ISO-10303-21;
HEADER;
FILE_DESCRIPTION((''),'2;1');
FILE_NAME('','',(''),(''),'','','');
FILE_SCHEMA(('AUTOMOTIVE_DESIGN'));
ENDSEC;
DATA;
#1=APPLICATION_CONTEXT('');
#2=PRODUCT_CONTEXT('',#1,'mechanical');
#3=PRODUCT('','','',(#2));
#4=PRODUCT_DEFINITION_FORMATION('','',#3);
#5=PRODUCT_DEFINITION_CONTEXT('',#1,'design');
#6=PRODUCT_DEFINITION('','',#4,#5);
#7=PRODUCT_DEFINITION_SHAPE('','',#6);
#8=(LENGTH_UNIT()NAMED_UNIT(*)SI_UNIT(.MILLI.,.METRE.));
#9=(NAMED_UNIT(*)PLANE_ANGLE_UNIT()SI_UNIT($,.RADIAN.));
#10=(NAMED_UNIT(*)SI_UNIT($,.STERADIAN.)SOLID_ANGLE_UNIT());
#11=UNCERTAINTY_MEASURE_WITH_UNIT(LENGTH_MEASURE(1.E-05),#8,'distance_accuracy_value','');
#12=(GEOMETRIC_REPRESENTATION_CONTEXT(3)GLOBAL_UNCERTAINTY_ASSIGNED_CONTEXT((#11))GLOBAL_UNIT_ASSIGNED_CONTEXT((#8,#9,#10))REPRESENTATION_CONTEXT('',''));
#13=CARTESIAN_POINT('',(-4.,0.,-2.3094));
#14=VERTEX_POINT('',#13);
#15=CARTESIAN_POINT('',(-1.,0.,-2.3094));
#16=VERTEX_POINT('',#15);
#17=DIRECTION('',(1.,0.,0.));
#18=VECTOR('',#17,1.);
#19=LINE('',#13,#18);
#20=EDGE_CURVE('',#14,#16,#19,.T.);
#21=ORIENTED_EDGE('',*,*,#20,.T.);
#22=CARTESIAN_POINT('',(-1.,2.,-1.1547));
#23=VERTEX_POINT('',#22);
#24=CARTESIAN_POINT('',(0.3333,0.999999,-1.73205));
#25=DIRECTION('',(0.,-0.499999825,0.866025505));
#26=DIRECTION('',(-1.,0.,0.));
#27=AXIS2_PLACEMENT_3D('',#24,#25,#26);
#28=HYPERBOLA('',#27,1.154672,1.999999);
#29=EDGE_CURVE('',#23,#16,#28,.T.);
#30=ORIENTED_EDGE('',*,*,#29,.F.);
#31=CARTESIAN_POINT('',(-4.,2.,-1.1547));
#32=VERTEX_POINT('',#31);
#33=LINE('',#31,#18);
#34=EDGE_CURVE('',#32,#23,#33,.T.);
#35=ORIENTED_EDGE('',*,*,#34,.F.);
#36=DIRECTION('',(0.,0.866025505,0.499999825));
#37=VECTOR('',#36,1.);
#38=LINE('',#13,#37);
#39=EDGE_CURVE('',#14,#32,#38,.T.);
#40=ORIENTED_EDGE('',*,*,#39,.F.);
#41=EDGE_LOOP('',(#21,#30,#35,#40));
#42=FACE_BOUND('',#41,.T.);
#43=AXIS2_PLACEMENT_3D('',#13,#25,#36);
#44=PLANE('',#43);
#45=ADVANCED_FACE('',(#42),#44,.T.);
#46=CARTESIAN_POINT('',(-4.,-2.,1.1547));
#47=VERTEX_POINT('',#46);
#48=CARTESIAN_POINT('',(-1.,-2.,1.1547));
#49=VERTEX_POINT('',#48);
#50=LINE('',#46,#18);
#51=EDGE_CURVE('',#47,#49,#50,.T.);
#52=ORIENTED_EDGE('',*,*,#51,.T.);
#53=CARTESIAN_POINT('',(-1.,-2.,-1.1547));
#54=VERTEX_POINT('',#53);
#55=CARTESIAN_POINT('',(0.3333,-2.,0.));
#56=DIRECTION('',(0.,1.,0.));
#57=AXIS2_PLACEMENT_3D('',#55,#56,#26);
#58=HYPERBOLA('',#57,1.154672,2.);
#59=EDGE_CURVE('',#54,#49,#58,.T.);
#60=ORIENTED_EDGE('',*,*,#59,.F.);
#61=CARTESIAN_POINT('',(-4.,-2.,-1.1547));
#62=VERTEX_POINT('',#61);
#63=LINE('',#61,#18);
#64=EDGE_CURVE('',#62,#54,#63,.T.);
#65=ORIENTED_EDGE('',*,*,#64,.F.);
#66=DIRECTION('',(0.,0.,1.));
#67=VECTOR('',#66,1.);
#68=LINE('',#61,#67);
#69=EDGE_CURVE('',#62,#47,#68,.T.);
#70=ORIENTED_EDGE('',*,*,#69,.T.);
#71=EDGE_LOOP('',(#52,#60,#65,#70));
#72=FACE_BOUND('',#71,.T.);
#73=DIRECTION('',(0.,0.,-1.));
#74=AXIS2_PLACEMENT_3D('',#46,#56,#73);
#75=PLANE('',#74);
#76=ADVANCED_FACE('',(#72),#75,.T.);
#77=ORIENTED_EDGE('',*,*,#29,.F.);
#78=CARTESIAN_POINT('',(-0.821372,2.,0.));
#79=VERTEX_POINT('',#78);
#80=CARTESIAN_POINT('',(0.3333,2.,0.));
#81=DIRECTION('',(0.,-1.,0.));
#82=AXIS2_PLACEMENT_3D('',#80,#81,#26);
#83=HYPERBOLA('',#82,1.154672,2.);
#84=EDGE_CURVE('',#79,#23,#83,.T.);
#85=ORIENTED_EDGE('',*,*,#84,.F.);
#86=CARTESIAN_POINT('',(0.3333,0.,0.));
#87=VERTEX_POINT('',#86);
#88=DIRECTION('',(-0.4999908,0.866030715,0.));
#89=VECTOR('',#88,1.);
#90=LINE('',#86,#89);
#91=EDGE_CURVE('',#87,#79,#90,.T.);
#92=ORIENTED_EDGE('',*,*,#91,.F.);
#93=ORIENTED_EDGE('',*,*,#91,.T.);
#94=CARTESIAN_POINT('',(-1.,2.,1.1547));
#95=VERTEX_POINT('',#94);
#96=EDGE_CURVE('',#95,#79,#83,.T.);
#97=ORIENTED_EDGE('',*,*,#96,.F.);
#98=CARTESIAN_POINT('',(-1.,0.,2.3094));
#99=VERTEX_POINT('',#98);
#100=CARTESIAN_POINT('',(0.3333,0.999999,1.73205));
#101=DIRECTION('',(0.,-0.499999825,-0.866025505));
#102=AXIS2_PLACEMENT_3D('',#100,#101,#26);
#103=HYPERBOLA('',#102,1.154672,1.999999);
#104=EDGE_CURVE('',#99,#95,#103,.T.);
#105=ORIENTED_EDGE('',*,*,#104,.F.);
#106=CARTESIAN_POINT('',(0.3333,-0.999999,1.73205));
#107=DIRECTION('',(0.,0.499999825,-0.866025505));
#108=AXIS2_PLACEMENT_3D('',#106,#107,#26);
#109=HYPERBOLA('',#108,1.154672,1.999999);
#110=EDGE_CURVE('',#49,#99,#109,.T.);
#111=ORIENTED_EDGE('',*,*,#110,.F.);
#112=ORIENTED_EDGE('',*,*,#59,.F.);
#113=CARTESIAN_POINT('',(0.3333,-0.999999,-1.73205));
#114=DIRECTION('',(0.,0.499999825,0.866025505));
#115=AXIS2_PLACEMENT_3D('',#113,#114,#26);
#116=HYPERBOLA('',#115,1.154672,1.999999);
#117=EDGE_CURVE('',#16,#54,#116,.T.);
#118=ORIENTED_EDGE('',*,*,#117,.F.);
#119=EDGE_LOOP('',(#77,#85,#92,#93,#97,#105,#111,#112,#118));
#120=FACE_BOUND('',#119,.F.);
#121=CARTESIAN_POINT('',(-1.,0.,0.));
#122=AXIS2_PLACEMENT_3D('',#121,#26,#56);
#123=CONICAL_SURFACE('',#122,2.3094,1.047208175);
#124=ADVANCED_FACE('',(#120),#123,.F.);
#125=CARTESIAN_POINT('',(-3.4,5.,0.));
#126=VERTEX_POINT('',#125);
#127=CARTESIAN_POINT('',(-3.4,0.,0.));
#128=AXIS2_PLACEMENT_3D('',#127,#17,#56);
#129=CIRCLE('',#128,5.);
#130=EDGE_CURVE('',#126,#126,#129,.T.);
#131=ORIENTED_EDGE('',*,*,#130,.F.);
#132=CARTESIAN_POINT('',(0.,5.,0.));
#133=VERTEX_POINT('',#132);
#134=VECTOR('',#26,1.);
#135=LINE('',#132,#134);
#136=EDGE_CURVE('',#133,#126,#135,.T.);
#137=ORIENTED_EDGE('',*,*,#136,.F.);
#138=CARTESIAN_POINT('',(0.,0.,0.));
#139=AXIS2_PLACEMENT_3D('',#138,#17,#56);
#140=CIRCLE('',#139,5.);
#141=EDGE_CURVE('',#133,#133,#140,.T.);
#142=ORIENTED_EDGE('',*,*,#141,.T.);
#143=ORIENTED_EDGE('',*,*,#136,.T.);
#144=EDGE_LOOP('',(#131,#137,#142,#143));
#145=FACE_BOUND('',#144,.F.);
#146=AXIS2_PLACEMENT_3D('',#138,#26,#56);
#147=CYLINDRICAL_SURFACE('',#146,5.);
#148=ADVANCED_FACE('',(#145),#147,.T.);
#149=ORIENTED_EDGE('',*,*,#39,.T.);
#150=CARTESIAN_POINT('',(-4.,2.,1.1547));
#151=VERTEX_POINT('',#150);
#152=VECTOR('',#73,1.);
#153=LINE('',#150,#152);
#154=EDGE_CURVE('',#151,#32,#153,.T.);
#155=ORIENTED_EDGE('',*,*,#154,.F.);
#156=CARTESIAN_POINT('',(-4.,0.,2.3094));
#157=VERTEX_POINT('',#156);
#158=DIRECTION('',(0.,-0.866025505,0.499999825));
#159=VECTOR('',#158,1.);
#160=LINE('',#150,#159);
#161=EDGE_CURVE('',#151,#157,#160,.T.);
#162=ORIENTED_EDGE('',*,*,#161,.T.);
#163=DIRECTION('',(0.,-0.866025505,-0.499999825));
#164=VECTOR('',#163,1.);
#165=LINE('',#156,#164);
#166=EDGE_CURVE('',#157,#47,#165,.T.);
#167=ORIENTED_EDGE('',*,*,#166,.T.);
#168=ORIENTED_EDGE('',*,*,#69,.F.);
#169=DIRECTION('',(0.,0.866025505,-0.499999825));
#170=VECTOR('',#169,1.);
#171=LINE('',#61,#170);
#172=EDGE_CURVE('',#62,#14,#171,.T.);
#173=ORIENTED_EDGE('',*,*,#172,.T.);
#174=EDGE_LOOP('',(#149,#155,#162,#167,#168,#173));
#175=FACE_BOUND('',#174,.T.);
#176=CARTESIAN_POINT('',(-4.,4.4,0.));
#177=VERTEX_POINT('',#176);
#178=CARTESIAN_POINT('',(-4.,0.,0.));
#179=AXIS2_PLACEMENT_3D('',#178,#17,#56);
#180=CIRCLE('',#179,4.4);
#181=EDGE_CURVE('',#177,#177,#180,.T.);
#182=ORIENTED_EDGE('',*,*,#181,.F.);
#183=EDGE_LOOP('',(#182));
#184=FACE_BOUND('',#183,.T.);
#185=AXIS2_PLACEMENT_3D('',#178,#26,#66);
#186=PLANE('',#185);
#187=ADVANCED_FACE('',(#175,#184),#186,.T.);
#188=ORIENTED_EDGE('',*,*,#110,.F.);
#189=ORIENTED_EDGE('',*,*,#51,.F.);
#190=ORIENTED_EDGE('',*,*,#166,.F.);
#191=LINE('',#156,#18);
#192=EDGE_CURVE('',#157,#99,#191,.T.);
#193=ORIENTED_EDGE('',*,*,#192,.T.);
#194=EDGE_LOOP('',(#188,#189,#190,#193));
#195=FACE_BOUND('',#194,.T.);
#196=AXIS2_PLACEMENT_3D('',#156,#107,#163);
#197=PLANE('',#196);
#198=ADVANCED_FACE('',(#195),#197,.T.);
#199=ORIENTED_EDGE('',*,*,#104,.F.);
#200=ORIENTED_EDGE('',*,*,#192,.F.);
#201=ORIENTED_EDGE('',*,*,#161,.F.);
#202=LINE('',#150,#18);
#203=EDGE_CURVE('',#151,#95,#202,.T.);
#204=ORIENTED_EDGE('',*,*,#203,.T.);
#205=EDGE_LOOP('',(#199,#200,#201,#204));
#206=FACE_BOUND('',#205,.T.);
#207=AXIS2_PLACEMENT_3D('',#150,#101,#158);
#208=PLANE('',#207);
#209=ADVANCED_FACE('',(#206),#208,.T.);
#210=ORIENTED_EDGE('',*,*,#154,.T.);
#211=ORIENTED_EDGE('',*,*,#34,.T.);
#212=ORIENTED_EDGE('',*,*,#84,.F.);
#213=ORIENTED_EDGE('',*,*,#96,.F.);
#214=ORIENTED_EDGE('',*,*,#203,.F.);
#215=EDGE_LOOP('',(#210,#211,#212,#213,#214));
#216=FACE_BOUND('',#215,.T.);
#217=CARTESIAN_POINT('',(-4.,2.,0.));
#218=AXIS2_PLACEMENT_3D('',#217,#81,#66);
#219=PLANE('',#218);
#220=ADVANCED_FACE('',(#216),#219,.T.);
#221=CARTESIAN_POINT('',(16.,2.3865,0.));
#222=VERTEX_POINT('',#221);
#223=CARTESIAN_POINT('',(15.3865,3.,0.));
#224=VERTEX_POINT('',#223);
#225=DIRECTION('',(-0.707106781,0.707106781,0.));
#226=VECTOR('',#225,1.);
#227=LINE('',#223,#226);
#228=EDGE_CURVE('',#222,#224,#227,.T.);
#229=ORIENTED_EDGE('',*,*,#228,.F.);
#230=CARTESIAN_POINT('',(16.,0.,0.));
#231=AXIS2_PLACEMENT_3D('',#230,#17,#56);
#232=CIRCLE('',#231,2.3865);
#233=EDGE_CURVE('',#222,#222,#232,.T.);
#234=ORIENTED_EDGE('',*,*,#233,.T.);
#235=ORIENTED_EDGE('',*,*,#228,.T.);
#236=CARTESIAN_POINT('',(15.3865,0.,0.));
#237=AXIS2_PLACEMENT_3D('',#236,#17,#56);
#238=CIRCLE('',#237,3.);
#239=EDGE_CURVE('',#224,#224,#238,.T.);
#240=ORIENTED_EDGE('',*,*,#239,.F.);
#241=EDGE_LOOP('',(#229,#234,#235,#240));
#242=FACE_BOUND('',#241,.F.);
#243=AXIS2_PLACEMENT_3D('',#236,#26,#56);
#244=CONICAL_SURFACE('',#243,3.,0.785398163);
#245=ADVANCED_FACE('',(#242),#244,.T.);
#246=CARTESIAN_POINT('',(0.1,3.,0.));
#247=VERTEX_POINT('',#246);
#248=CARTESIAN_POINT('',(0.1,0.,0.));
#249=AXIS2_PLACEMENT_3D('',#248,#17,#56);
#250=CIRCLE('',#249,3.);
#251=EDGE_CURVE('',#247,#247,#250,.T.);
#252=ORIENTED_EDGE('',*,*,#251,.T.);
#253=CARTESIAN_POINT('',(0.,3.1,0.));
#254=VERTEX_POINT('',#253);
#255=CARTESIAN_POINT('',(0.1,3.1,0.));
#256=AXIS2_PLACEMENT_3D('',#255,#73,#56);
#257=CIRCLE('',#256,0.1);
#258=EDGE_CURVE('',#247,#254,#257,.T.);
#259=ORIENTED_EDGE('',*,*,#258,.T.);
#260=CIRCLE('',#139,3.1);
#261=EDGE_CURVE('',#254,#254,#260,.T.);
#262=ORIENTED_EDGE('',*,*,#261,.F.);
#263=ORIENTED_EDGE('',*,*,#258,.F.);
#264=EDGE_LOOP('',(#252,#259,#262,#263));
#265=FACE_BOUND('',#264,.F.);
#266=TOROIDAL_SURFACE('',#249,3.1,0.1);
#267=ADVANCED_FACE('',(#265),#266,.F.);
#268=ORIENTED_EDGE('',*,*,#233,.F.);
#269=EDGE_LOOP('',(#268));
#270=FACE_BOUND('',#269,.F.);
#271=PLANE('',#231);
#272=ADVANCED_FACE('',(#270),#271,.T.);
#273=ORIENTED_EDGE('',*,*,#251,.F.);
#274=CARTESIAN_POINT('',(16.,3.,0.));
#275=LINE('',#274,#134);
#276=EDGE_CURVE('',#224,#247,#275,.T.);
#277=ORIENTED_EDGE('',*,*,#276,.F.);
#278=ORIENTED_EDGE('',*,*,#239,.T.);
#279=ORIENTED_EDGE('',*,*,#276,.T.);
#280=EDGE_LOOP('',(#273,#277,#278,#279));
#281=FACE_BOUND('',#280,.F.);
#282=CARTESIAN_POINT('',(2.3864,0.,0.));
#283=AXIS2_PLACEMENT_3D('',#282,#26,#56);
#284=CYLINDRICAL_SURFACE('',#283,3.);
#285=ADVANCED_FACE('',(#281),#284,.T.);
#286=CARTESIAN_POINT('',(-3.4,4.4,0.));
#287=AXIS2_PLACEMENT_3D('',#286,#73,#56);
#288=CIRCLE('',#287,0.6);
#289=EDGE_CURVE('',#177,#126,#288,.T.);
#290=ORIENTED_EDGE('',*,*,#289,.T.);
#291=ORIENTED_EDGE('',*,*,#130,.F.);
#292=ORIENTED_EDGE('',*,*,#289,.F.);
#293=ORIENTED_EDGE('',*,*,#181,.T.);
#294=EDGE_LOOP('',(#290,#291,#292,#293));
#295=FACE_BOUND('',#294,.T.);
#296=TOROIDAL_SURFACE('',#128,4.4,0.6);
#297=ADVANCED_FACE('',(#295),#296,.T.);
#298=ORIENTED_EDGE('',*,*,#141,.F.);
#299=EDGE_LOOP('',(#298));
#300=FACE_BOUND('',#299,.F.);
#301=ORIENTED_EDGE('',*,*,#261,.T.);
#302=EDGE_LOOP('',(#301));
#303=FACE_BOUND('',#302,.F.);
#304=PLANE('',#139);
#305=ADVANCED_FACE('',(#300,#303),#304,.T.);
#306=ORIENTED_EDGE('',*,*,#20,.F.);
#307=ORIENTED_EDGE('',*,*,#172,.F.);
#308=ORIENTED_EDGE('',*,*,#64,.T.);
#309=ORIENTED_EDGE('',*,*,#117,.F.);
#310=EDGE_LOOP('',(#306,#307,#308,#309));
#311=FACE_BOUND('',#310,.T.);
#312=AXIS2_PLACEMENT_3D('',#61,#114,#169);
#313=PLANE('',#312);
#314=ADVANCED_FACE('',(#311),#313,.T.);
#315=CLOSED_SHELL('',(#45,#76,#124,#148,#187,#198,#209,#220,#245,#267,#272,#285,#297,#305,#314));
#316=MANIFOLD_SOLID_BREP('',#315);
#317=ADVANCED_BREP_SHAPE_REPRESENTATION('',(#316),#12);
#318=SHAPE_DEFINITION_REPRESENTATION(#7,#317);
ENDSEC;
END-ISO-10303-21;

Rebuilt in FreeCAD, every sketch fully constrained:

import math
import FreeCAD as App
import Part
import Sketcher

V = App.Vector
Q = App.Units.Quantity


def edges_at(feature, points):
    """Names of the edges that pass closest to the given points."""
    edges = feature.Shape.Edges
    near = lambda p: min(range(len(edges)), key=lambda i: edges[i].distToShape(Part.Vertex(*p))[0])
    return sorted({f"Edge{near(p) + 1}" for p in points})

doc = App.newDocument("Part")
body = doc.addObject("PartDesign::Body", "Body")

# Sketch on XY plane
sketch1 = body.newObject("Sketcher::SketchObject", "Sketch")
sketch1.AttachmentSupport = (doc.getObject("XY_Plane"), [""])
sketch1.MapMode = "FlatFace"
sketch1.addGeometry(Part.LineSegment(V(0.3333, 0, 0), V(16, 0, 0)), False)
sketch1.addGeometry(Part.LineSegment(V(16, 0, 0), V(16, 3, 0)), False)
sketch1.addGeometry(Part.LineSegment(V(16, 3, 0), V(0, 3, 0)), False)
sketch1.addGeometry(Part.LineSegment(V(0, 3, 0), V(0, 5, 0)), False)
sketch1.addGeometry(Part.LineSegment(V(0, 5, 0), V(-4, 5, 0)), False)
sketch1.addGeometry(Part.LineSegment(V(-4, 5, 0), V(-4, 2.3094, 0)), False)
sketch1.addGeometry(Part.LineSegment(V(-4, 2.3094, 0), V(-1, 2.3094, 0)), False)
sketch1.addGeometry(Part.LineSegment(V(-1, 2.3094, 0), V(0.3333, 0, 0)), False)
sketch1.addConstraint(Sketcher.Constraint("Coincident", 0, 2, 1, 1))
sketch1.addConstraint(Sketcher.Constraint("Coincident", 1, 2, 2, 1))
sketch1.addConstraint(Sketcher.Constraint("Coincident", 2, 2, 3, 1))
sketch1.addConstraint(Sketcher.Constraint("Coincident", 3, 2, 4, 1))
sketch1.addConstraint(Sketcher.Constraint("Coincident", 4, 2, 5, 1))
sketch1.addConstraint(Sketcher.Constraint("Coincident", 5, 2, 6, 1))
sketch1.addConstraint(Sketcher.Constraint("Coincident", 6, 2, 7, 1))
sketch1.addConstraint(Sketcher.Constraint("Coincident", 7, 2, 0, 1))
sketch1.addConstraint(Sketcher.Constraint("Horizontal", 0))
sketch1.addConstraint(Sketcher.Constraint("Vertical", 1))
sketch1.addConstraint(Sketcher.Constraint("Horizontal", 2))
sketch1.addConstraint(Sketcher.Constraint("Vertical", 3))
sketch1.addConstraint(Sketcher.Constraint("Horizontal", 4))
sketch1.addConstraint(Sketcher.Constraint("Vertical", 5))
sketch1.addConstraint(Sketcher.Constraint("Horizontal", 6))
sketch1.addConstraint(Sketcher.Constraint("PointOnObject", 0, 2, -1))
sketch1.addConstraint(Sketcher.Constraint("PointOnObject", 2, 2, -2))
sketch1.addConstraint(Sketcher.Constraint("Equal", 6, 1))
sketch1.addConstraint(Sketcher.Constraint("DistanceX", 2, 2, 2, 1, Q("16 mm")))
sketch1.addConstraint(Sketcher.Constraint("DistanceX", 4, 2, 4, 1, Q("4 mm")))
sketch1.addConstraint(Sketcher.Constraint("DistanceX", 6, 1, 6, 2, Q("3 mm")))
sketch1.addConstraint(Sketcher.Constraint("DistanceY", 3, 1, 3, 2, Q("2 mm")))
sketch1.addConstraint(Sketcher.Constraint("Angle", 7, Q("-60.0006 deg")))
sketch1.addConstraint(Sketcher.Constraint("DistanceX", 0, 1, 0, 2, Q("15.6667 mm")))
revolution = body.newObject("PartDesign::Revolution", "Revolution")
revolution.Profile = sketch1
revolution.ReferenceAxis = (sketch1, ["H_Axis"])
revolution.Angle = 360

# Sketch on YZ plane
sketch2 = body.newObject("Sketcher::SketchObject", "Sketch001")
sketch2.AttachmentSupport = (doc.getObject("YZ_Plane"), [""])
sketch2.MapMode = "FlatFace"
sketch2.AttachmentOffset = App.Placement(V(0, 0, -4), App.Rotation())
sketch2.addGeometry(Part.LineSegment(V(2, 1.1547, 0), V(0, 2.3094, 0)), False)
sketch2.addGeometry(Part.ArcOfCircle(Part.Circle(V(0, 0, 0), V(0, 0, 1), 2.3094), math.radians(29.999988), math.radians(90)), False)
sketch2.addGeometry(Part.ArcOfCircle(Part.Circle(V(0, 0, 0), V(0, 0, 1), 2.3094), math.radians(90), math.radians(150.000012)), False)
sketch2.addGeometry(Part.LineSegment(V(0, 2.3094, 0), V(-2, 1.1547, 0)), False)
sketch2.addGeometry(Part.ArcOfCircle(Part.Circle(V(0, 0, 0), V(0, 0, 1), 2.3094), math.radians(-29.999988), math.radians(29.999988)), False)
sketch2.addGeometry(Part.LineSegment(V(2, -1.1547, 0), V(2, 1.1547, 0)), False)
sketch2.addGeometry(Part.LineSegment(V(-2, 1.1547, 0), V(-2, -1.1547, 0)), False)
sketch2.addGeometry(Part.ArcOfCircle(Part.Circle(V(0, 0, 0), V(0, 0, 1), 2.3094), math.radians(150.000012), math.radians(209.999988)), False)
sketch2.addGeometry(Part.LineSegment(V(-2, -1.1547, 0), V(0, -2.3094, 0)), False)
sketch2.addGeometry(Part.ArcOfCircle(Part.Circle(V(0, 0, 0), V(0, 0, 1), 2.3094), math.radians(-150.000012), math.radians(-90)), False)
sketch2.addGeometry(Part.ArcOfCircle(Part.Circle(V(0, 0, 0), V(0, 0, 1), 2.3094), math.radians(-90), math.radians(-29.999988)), False)
sketch2.addGeometry(Part.LineSegment(V(0, -2.3094, 0), V(2, -1.1547, 0)), False)
sketch2.addConstraint(Sketcher.Constraint("Coincident", 0, 1, 1, 1))
sketch2.addConstraint(Sketcher.Constraint("Coincident", 1, 2, 0, 2))
sketch2.addConstraint(Sketcher.Constraint("Coincident", 2, 1, 3, 1))
sketch2.addConstraint(Sketcher.Constraint("Coincident", 3, 2, 2, 2))
sketch2.addConstraint(Sketcher.Constraint("Coincident", 4, 1, 5, 1))
sketch2.addConstraint(Sketcher.Constraint("Coincident", 5, 2, 4, 2))
sketch2.addConstraint(Sketcher.Constraint("Coincident", 6, 1, 7, 1))
sketch2.addConstraint(Sketcher.Constraint("Coincident", 7, 2, 6, 2))
sketch2.addConstraint(Sketcher.Constraint("Coincident", 8, 1, 9, 1))
sketch2.addConstraint(Sketcher.Constraint("Coincident", 9, 2, 8, 2))
sketch2.addConstraint(Sketcher.Constraint("Coincident", 10, 1, 11, 1))
sketch2.addConstraint(Sketcher.Constraint("Coincident", 11, 2, 10, 2))
sketch2.addConstraint(Sketcher.Constraint("Vertical", 5))
sketch2.addConstraint(Sketcher.Constraint("Vertical", 6))
sketch2.addConstraint(Sketcher.Constraint("Coincident", 1, 3, -1, 1))
sketch2.addConstraint(Sketcher.Constraint("Coincident", 2, 3, -1, 1))
sketch2.addConstraint(Sketcher.Constraint("Coincident", 4, 3, -1, 1))
sketch2.addConstraint(Sketcher.Constraint("Coincident", 7, 3, -1, 1))
sketch2.addConstraint(Sketcher.Constraint("Coincident", 9, 3, -1, 1))
sketch2.addConstraint(Sketcher.Constraint("Coincident", 10, 3, -1, 1))
sketch2.addConstraint(Sketcher.Constraint("Coincident", 2, 1, 1, 2))
sketch2.addConstraint(Sketcher.Constraint("Coincident", 5, 2, 0, 1))
sketch2.addConstraint(Sketcher.Constraint("Coincident", 6, 1, 3, 2))
sketch2.addConstraint(Sketcher.Constraint("Coincident", 8, 1, 7, 2))
sketch2.addConstraint(Sketcher.Constraint("Coincident", 10, 1, 9, 2))
sketch2.addConstraint(Sketcher.Constraint("PointOnObject", 1, 2, -2))
sketch2.addConstraint(Sketcher.Constraint("PointOnObject", 9, 2, -2))
sketch2.addConstraint(Sketcher.Constraint("Parallel", 0, 8))
sketch2.addConstraint(Sketcher.Constraint("Parallel", 3, 11))
sketch2.addConstraint(Sketcher.Constraint("Angle", 0, Q("150 deg")))
sketch2.addConstraint(Sketcher.Constraint("DistanceX", -1, 1, 0, 1, Q("2 mm")))
pad1 = body.newObject("PartDesign::Pad", "Pad")
pad1.Profile = sketch2
pad1.Length = 3.1786
doc.recompute()

fillet = body.newObject("PartDesign::Fillet", "Fillet")
fillet.Base = (pad1, edges_at(pad1, [(-4, -5, 0)]))
fillet.Radius = 0.6
doc.recompute()

chamfer = body.newObject("PartDesign::Chamfer", "Chamfer")
chamfer.Base = (fillet, edges_at(fillet, [(16, -3, 0)]))
chamfer.ChamferType = "Two distances"
chamfer.Size = 0.6135
chamfer.Size2 = 0.6135
doc.recompute()

fillet2 = body.newObject("PartDesign::Fillet", "Fillet001")
fillet2.Base = (chamfer, edges_at(chamfer, [(0, -3, 0)]))
fillet2.Radius = 0.1

doc.recompute()
